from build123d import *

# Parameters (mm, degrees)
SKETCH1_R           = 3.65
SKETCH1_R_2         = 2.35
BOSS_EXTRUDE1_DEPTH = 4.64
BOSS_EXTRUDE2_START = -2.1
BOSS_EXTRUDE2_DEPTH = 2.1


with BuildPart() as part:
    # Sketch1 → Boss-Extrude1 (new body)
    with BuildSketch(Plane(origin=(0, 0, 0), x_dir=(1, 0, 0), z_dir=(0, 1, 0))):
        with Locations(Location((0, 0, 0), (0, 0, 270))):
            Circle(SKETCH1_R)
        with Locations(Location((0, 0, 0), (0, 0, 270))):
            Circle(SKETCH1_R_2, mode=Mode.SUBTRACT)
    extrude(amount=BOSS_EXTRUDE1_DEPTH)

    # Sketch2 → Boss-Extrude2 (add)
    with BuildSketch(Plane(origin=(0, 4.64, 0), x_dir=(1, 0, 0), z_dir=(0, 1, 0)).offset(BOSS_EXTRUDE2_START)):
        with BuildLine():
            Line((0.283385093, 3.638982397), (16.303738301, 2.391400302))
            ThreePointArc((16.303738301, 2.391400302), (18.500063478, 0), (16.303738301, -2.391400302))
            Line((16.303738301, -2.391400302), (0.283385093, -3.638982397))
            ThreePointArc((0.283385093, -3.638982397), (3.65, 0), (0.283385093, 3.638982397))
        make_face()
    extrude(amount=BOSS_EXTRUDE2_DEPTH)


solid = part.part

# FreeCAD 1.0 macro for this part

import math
import FreeCAD as App
import Part
import Sketcher
from FreeCAD import Vector

doc = App.newDocument("Part")
body = doc.addObject("PartDesign::Body", "Body")

# Sketch on XZ plane
sketch1 = body.newObject("Sketcher::SketchObject", "Sketch")
sketch1.AttachmentSupport = (doc.getObject("XZ_Plane"), [""])
sketch1.MapMode = "FlatFace"
sketch1.addGeometry([
    Part.Circle(Vector(0, 0, 0), Vector(0, 0, 1), 3.6),
    Part.Circle(Vector(0, 0, 0), Vector(0, 0, 1), 2.4),
], False)
sketch1.addConstraint([
    Sketcher.Constraint("Coincident", 0, 3, -1, 1),
    Sketcher.Constraint("Coincident", 1, 3, -1, 1),
    Sketcher.Constraint("Diameter", 0, 7.3),
    Sketcher.Constraint("Diameter", 1, 4.7),
])
pad1 = body.newObject("PartDesign::Pad", "Pad")
pad1.Profile = sketch1
pad1.Length = 4.64
pad1.Reversed = True

# Sketch on XZ plane
sketch2 = body.newObject("Sketcher::SketchObject", "Sketch001")
sketch2.AttachmentSupport = (doc.getObject("XZ_Plane"), [""])
sketch2.MapMode = "FlatFace"
sketch2.AttachmentOffset = App.Placement(Vector(0, 0, -2.54), App.Rotation())
sketch2.addGeometry([
    Part.LineSegment(Vector(16.3, -2.4, 0), Vector(0.3, -3.6, 0)),
    Part.ArcOfCircle(Part.Circle(Vector(0, 0, 0), Vector(0, 0, 1), 3.6), math.radians(-86), math.radians(86)),
    Part.LineSegment(Vector(0.3, 3.6, 0), Vector(16.3, 2.4, 0)),
    Part.ArcOfCircle(Part.Circle(Vector(16.1, 0, 0), Vector(0, 0, 1), 2.4), math.radians(-85), math.radians(85)),
], False)
sketch2.addConstraint([
    Sketcher.Constraint("Tangent", 0, 2, 1, 1),
    Sketcher.Constraint("Tangent", 1, 2, 2, 1),
    Sketcher.Constraint("Coincident", 2, 2, 3, 2),
    Sketcher.Constraint("Coincident", 3, 1, 0, 1),
    Sketcher.Constraint("Coincident", 1, 3, -1, 1),
    Sketcher.Constraint("Symmetric", 2, 2, 3, 1, -1),
    Sketcher.Constraint("Radius", 1, 3.65),
    Sketcher.Constraint("DistanceX", -1, 1, 3, 3, 16.1),
    Sketcher.Constraint("Radius", 3, 2.400063),
    Sketcher.Constraint("DistanceY", -1, 1, 2, 2, 2.3914),
])
pad2 = body.newObject("PartDesign::Pad", "Pad001")
pad2.Profile = sketch2
pad2.Length = 2.1
pad2.Reversed = True

doc.recompute()
